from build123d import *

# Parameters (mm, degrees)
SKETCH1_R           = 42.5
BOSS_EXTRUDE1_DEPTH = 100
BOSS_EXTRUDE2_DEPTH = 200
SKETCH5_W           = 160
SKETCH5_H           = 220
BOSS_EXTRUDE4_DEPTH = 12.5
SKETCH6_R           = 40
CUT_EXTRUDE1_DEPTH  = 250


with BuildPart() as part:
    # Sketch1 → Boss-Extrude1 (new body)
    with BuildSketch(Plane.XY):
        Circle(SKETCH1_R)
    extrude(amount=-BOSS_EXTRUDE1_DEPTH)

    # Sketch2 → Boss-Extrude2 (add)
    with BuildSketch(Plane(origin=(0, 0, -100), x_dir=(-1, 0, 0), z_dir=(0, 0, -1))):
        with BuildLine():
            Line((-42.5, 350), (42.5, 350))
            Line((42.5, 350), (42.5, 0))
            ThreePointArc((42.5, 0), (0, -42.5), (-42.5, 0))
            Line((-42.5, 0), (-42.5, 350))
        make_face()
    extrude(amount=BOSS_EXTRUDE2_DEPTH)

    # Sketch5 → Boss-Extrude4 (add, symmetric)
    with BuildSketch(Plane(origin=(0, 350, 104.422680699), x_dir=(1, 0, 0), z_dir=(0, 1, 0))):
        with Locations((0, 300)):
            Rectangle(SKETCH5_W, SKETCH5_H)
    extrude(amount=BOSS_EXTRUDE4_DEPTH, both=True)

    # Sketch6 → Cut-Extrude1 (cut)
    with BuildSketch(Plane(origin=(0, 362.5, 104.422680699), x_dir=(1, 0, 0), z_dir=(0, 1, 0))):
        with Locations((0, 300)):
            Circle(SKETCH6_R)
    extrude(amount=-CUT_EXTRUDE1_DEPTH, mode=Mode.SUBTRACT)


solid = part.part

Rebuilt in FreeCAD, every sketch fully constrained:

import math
import FreeCAD as App
import Part
import Sketcher
from FreeCAD import Vector
Q = App.Units.Quantity


def add_polygon(sketch, points):
    """Adds a closed chain of lines whose ends are joined by coincident constraints."""
    first, n = sketch.GeometryCount, len(points)
    for a, b in zip(points, points[1:] + points[:1]):
        sketch.addGeometry(Part.LineSegment(App.Vector(*a, 0), App.Vector(*b, 0)), False)
    for i in range(n):
        sketch.addConstraint(Sketcher.Constraint("Coincident", first + i, 2, first + (i + 1) % n, 1))

doc = App.newDocument("Part")
params = doc.addObject("Spreadsheet::Sheet", "Params")
for row, (alias, value) in enumerate([
    ("sketch1_diameter", "85 mm"),
    ("pad1_length", "100 mm"),
    ("sketch2_radius", "42.5 mm"),
    ("sketch2_height", "350 mm"),
    ("pad2_length", "200 mm"),
    ("sketch3_width", "160 mm"),
    ("sketch3_height", "220 mm"),
    ("pad3_length", "25 mm"),
    ("sketch4_diameter", "80 mm"),
    ("pocket1_length", "250 mm"),
], start=1):
    params.set(f"A{row}", alias)
    params.set(f"B{row}", "=" + value)
    params.setAlias(f"B{row}", alias)

body = doc.addObject("PartDesign::Body", "Body")

sketch1 = doc.addObject("Sketcher::SketchObject", "Sketch")
body.addObject(sketch1)
sketch1.AttachmentSupport = (doc.XY_Plane, [""])
sketch1.MapMode = "FlatFace"
sketch1.addGeometry(Part.Circle(Vector(0, 0, 0), Vector(0, 0, 1), 42.5), False)
sketch1.addConstraint([
    Sketcher.Constraint("Coincident", 0, 3, -1, 1),
    Sketcher.Constraint("Diameter", 0, Q("85 mm")),
])
sketch1.setExpression("Constraints[1]", "Params.sketch1_diameter")
pad1 = doc.addObject("PartDesign::Pad", "Pad")
body.addObject(pad1)
pad1.Profile = sketch1
pad1.setExpression("Length", "Params.pad1_length")
pad1.Reversed = True

sketch2 = doc.addObject("Sketcher::SketchObject", "Sketch001")
body.addObject(sketch2)
sketch2.AttachmentSupport = (doc.XY_Plane, [""])
sketch2.MapMode = "FlatFace"
sketch2.AttachmentOffset = App.Placement(Vector(0, 0, -100), App.Rotation())
sketch2.addGeometry([
    Part.LineSegment(Vector(-42.5, 350, 0), Vector(42.5, 350, 0)),
    Part.LineSegment(Vector(42.5, 350, 0), Vector(42.5, 0, 0)),
    Part.ArcOfCircle(Part.Circle(Vector(0, 0, 0), Vector(0, 0, 1), 42.5), math.radians(180), math.radians(360)),
    Part.LineSegment(Vector(-42.5, 0, 0), Vector(-42.5, 350, 0)),
], False)
sketch2.addConstraint([
    Sketcher.Constraint("Coincident", 0, 2, 1, 1),
    Sketcher.Constraint("Tangent", 1, 2, 2, 2),
    Sketcher.Constraint("Tangent", 2, 1, 3, 1),
    Sketcher.Constraint("Coincident", 3, 2, 0, 1),
    Sketcher.Constraint("Horizontal", 0),
    Sketcher.Constraint("Vertical", 1),
    Sketcher.Constraint("Vertical", 3),
    Sketcher.Constraint("Coincident", 2, 3, -1, 1),
    Sketcher.Constraint("Radius", 2, Q("42.5 mm")),
    Sketcher.Constraint("DistanceY", 1, 2, 1, 1, Q("350 mm")),
])
sketch2.setExpression("Constraints[8]", "Params.sketch2_radius")
sketch2.setExpression("Constraints[9]", "Params.sketch2_height")
pad2 = doc.addObject("PartDesign::Pad", "Pad001")
body.addObject(pad2)
pad2.Profile = sketch2
pad2.setExpression("Length", "Params.pad2_length")
pad2.Reversed = True

sketch3 = doc.addObject("Sketcher::SketchObject", "Sketch002")
body.addObject(sketch3)
sketch3.AttachmentSupport = (doc.XZ_Plane, [""])
sketch3.MapMode = "FlatFace"
sketch3.AttachmentOffset = App.Placement(Vector(0, 0, -350), App.Rotation())
add_polygon(sketch3, [(-80, -305.577319), (-80, -85.577319), (80, -85.577319), (80, -305.577319)])
sketch3.addConstraint([
    Sketcher.Constraint("Vertical", 0),
    Sketcher.Constraint("Horizontal", 1),
    Sketcher.Constraint("Vertical", 2),
    Sketcher.Constraint("Horizontal", 3),
    Sketcher.Constraint("DistanceX", 1, 1, 1, 2, Q("160 mm")),
    Sketcher.Constraint("DistanceY", 0, 1, 0, 2, Q("220 mm")),
    Sketcher.Constraint("DistanceX", 0, 2, -1, 1, Q("80 mm")),
    Sketcher.Constraint("DistanceY", 0, 2, -1, 1, Q("85.577319 mm")),
])
sketch3.setExpression("Constraints[8]", "Params.sketch3_width")
sketch3.setExpression("Constraints[9]", "Params.sketch3_height")
pad3 = doc.addObject("PartDesign::Pad", "Pad002")
body.addObject(pad3)
pad3.Profile = sketch3
pad3.setExpression("Length", "Params.pad3_length")
pad3.Midplane = True

sketch4 = doc.addObject("Sketcher::SketchObject", "Sketch003")
body.addObject(sketch4)
sketch4.AttachmentSupport = (doc.XZ_Plane, [""])
sketch4.MapMode = "FlatFace"
sketch4.AttachmentOffset = App.Placement(Vector(0, 0, -362.5), App.Rotation())
sketch4.addGeometry(Part.Circle(Vector(0, -195.577319, 0), Vector(0, 0, 1), 40), False)
sketch4.addConstraint([
    Sketcher.Constraint("PointOnObject", 0, 3, -2),
    Sketcher.Constraint("Diameter", 0, Q("80 mm")),
    Sketcher.Constraint("DistanceY", 0, 3, -1, 1, Q("195.577319 mm")),
])
sketch4.setExpression("Constraints[1]", "Params.sketch4_diameter")
pocket1 = doc.addObject("PartDesign::Pocket", "Pocket")
body.addObject(pocket1)
pocket1.Profile = sketch4
pocket1.setExpression("Length", "Params.pocket1_length")
pocket1.Reversed = True

doc.recompute()
